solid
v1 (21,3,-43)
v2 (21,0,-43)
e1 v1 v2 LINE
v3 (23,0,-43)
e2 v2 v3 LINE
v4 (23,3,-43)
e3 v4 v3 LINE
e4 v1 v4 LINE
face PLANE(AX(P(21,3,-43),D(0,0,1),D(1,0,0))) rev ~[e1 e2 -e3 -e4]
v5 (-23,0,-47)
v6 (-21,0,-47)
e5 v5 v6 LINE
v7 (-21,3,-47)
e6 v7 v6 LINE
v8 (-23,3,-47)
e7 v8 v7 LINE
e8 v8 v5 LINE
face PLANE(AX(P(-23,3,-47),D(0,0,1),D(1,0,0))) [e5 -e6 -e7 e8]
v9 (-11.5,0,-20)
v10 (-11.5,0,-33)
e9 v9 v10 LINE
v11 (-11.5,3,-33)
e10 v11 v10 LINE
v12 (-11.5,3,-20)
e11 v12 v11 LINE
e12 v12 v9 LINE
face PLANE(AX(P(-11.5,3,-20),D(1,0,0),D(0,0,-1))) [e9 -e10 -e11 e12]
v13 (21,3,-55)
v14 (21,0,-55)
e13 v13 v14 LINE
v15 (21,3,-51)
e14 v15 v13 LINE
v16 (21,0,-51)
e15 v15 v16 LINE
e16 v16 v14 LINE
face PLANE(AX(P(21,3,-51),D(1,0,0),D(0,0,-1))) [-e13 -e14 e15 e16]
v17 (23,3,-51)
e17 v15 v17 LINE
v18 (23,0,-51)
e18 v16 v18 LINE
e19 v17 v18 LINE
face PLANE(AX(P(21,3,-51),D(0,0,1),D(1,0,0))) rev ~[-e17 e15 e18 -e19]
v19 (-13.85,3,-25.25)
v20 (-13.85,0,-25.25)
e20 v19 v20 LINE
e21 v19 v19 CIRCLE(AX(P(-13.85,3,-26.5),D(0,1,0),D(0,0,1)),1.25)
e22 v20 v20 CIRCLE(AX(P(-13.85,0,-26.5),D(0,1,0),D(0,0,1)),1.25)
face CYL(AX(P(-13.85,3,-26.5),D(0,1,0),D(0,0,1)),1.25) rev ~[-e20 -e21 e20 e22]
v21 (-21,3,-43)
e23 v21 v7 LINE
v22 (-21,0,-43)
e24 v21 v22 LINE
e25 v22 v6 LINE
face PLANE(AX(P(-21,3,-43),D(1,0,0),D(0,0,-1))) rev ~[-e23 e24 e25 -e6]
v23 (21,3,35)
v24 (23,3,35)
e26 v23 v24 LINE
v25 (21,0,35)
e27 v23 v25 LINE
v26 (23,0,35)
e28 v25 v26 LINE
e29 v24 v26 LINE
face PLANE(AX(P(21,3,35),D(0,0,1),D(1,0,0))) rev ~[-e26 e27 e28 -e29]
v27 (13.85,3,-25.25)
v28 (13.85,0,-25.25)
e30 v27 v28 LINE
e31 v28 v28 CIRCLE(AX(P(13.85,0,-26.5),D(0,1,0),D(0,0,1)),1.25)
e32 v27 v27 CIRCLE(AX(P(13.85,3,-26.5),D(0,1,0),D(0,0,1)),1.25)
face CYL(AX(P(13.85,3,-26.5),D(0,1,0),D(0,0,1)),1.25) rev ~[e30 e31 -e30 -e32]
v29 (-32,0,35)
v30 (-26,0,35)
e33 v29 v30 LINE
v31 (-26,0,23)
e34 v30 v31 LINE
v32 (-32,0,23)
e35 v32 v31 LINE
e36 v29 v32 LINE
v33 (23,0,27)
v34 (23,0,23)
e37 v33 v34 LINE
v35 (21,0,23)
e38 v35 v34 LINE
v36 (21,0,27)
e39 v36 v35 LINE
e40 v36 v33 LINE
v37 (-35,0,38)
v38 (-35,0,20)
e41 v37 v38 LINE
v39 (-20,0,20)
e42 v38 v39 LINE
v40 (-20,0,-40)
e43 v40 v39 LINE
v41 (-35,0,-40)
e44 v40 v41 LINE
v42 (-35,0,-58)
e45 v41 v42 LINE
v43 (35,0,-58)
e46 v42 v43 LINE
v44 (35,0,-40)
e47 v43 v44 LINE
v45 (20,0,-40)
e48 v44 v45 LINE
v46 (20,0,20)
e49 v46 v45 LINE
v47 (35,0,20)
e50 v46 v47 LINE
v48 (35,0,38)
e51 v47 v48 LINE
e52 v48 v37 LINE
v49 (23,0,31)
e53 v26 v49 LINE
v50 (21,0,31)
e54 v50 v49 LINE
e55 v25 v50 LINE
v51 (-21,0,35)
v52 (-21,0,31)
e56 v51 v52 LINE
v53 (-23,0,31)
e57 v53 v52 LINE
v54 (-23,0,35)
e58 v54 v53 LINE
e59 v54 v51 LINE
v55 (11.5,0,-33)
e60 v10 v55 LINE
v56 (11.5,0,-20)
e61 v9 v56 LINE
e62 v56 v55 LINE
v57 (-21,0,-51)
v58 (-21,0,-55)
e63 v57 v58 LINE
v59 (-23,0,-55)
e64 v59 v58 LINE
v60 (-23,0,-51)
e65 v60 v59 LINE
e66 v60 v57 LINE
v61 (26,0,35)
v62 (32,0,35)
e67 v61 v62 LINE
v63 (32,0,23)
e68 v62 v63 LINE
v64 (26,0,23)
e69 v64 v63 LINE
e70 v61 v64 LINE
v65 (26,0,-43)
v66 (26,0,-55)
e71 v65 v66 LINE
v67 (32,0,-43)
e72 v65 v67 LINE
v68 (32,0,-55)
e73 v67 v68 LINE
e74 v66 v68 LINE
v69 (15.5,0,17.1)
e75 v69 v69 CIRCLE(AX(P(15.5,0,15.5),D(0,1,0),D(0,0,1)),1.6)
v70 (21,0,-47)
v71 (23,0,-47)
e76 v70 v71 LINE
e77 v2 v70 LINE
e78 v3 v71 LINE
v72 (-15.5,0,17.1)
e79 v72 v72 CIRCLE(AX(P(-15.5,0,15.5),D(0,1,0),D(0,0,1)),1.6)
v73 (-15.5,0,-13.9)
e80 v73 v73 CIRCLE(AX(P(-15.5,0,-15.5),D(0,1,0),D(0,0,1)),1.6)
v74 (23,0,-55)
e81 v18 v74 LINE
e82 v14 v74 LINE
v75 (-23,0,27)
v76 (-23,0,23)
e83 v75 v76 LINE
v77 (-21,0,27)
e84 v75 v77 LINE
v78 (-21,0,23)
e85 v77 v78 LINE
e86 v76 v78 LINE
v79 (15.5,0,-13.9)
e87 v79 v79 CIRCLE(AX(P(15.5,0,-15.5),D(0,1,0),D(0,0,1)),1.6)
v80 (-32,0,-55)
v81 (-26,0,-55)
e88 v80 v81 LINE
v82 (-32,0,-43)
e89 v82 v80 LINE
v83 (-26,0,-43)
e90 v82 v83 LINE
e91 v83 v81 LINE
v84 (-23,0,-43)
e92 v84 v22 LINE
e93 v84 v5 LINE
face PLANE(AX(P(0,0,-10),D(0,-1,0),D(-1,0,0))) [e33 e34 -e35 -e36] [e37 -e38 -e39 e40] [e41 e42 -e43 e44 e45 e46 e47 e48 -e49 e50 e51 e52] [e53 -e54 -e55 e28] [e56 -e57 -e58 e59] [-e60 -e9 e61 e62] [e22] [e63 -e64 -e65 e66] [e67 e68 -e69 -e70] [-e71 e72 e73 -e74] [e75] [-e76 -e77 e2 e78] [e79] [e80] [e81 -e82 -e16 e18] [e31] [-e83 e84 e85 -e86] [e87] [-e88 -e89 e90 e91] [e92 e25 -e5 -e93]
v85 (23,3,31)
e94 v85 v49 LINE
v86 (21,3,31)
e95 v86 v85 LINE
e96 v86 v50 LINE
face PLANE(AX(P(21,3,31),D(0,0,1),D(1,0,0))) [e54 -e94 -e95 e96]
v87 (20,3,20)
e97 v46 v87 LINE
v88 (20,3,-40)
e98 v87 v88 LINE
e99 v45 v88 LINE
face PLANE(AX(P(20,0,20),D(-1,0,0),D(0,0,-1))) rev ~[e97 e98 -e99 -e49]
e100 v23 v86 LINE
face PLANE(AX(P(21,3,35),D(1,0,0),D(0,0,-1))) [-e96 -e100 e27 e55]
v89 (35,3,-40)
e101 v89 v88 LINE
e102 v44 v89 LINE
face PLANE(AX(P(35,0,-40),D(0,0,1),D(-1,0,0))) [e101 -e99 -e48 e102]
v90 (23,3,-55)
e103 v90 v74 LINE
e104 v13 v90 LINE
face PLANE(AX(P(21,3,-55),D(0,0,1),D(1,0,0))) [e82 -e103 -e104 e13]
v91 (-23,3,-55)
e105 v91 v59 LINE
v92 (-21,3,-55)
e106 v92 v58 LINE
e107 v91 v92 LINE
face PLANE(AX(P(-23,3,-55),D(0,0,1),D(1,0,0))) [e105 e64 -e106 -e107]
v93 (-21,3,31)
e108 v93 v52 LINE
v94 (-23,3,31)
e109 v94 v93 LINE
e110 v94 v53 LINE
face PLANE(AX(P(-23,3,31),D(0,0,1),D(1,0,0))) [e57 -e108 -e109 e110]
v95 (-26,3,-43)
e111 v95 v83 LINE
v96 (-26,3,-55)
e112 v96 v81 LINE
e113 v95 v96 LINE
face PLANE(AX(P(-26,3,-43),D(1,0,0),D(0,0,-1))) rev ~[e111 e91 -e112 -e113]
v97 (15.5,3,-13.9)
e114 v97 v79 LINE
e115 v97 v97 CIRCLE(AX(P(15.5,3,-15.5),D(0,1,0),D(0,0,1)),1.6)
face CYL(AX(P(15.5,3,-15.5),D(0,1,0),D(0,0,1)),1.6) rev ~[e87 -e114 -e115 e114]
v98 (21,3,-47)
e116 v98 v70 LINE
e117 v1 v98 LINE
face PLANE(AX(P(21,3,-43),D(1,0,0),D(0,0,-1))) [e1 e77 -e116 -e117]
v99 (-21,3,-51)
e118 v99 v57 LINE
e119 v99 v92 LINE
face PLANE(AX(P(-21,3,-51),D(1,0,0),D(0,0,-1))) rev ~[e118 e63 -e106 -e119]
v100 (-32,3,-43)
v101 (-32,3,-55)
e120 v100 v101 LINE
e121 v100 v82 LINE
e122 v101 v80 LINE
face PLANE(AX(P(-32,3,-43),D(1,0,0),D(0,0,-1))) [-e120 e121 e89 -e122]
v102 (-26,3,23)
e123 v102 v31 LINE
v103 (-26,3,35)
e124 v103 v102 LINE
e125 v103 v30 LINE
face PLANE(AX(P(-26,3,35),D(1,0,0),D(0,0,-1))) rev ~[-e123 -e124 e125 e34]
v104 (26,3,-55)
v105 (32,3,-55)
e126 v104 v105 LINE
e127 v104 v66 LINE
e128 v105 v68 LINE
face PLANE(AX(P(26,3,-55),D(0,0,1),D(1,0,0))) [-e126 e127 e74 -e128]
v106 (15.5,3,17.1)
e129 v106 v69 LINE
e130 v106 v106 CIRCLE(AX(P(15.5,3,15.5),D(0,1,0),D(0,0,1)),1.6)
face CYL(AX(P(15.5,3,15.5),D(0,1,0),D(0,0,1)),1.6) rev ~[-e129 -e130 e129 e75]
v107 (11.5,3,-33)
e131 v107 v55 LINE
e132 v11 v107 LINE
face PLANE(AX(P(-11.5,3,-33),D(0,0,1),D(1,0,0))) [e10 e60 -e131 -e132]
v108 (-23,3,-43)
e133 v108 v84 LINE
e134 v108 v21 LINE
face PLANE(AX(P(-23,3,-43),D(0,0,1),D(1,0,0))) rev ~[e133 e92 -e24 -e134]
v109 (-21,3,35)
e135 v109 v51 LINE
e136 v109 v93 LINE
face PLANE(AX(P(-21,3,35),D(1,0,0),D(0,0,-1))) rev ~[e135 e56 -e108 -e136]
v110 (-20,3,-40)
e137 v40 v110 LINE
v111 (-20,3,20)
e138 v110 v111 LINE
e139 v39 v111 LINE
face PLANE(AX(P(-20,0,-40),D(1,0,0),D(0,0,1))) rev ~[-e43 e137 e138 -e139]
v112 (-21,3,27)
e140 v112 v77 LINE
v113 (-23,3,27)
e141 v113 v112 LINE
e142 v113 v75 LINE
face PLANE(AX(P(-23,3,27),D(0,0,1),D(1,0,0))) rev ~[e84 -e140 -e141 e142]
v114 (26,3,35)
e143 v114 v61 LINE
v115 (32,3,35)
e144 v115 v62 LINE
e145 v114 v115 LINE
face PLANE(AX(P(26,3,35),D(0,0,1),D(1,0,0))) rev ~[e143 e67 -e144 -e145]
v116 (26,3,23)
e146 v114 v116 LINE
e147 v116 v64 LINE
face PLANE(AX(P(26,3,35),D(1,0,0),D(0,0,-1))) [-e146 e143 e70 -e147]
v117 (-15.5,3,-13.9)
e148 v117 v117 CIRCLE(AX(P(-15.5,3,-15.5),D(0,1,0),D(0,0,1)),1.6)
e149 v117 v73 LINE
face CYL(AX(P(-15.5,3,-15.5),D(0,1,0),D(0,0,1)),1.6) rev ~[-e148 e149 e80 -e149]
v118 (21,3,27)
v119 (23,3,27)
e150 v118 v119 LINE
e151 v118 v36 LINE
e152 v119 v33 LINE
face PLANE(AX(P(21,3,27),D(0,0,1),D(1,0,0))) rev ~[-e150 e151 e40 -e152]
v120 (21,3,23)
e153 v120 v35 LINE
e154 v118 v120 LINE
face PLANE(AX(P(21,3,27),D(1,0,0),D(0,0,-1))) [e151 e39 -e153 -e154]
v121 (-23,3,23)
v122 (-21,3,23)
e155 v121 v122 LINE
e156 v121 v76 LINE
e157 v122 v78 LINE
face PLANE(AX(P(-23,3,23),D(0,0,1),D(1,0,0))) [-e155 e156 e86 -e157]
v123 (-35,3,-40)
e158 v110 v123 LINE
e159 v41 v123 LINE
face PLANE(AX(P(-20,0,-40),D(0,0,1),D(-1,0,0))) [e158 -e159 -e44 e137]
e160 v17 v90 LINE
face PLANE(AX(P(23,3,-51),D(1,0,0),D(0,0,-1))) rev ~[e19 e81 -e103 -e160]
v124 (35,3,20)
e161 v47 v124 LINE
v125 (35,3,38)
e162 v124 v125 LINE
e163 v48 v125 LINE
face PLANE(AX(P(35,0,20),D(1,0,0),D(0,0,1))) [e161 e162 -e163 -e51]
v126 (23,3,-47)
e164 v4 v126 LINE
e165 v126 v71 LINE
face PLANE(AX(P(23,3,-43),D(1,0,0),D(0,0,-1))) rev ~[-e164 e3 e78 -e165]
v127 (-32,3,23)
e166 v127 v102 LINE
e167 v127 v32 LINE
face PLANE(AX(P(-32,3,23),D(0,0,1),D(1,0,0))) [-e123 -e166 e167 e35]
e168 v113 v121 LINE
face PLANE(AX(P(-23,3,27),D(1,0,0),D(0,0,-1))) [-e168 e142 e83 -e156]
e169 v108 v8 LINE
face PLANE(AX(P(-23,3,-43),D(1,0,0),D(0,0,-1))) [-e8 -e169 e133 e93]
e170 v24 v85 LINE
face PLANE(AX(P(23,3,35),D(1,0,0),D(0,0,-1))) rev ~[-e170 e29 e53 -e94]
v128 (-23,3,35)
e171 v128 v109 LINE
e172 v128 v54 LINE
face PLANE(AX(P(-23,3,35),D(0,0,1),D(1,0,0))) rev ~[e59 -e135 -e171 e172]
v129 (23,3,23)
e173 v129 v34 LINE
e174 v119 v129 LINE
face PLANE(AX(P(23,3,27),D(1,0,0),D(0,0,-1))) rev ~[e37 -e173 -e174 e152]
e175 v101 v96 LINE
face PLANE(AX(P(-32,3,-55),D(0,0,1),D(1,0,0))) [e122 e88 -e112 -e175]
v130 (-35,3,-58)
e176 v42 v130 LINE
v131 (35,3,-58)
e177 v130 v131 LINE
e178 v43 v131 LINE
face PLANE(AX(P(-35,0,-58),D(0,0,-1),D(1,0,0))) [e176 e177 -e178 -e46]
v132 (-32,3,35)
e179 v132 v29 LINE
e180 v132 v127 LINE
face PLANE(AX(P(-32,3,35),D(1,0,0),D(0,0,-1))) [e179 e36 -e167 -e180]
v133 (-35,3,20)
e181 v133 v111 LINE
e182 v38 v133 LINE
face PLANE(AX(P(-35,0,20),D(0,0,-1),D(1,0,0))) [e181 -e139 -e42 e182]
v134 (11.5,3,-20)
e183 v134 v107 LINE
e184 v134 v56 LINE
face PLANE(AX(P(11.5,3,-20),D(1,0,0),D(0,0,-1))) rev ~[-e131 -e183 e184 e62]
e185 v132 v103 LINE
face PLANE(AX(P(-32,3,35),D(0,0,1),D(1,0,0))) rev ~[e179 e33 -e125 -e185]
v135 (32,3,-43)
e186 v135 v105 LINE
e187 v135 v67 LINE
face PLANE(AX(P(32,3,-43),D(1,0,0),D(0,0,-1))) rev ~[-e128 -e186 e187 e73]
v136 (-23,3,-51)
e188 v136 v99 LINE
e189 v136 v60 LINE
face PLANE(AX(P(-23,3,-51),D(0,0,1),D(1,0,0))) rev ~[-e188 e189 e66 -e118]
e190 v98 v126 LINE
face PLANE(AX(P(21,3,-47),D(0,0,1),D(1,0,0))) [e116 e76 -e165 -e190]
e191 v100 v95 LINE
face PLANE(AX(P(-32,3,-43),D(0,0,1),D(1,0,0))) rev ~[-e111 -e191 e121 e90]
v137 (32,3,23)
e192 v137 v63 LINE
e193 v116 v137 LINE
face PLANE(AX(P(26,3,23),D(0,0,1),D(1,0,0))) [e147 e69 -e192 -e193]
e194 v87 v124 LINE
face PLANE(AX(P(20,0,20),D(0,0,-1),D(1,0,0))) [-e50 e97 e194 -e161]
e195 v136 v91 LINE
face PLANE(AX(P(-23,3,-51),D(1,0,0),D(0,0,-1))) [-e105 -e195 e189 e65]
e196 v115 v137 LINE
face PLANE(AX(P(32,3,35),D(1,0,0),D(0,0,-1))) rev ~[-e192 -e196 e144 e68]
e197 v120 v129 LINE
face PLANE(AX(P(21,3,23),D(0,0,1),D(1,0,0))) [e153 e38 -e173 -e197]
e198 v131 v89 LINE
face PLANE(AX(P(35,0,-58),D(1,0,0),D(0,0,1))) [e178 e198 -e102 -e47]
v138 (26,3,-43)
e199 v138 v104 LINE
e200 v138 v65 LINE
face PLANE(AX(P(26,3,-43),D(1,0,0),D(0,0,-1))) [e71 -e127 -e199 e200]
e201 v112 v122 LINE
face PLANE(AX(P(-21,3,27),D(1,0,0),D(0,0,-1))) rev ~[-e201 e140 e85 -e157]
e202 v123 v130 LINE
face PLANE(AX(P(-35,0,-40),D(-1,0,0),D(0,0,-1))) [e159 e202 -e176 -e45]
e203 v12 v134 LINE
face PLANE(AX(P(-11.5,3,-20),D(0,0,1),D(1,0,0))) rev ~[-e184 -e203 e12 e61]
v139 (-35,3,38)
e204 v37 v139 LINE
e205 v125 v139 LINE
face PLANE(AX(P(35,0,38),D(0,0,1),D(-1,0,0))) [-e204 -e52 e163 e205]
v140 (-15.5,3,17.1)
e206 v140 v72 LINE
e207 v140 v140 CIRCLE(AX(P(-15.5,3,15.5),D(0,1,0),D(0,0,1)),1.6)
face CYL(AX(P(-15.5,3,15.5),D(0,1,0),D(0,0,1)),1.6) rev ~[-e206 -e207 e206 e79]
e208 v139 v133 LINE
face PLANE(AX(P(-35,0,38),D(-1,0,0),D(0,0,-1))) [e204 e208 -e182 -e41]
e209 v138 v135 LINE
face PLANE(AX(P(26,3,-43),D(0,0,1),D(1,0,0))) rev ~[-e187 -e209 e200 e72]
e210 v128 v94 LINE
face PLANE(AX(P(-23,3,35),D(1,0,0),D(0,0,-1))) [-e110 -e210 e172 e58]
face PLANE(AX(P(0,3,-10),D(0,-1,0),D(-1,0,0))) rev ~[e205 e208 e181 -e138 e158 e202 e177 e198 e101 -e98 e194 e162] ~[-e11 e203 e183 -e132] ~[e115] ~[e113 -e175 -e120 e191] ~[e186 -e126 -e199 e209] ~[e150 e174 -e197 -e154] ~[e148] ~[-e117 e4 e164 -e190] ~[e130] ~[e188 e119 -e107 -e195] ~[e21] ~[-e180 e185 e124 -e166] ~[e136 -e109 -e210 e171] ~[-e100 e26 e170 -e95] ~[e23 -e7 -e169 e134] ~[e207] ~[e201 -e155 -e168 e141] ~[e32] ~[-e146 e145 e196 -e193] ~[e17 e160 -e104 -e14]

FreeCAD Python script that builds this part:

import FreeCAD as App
import Part
import Sketcher
from FreeCAD import Vector
Q = App.Units.Quantity


def add_polygon(sketch, points):
    """Adds a closed chain of lines whose ends are joined by coincident constraints."""
    first, n = sketch.GeometryCount, len(points)
    for a, b in zip(points, points[1:] + points[:1]):
        sketch.addGeometry(Part.LineSegment(App.Vector(*a, 0), App.Vector(*b, 0)), False)
    for i in range(n):
        sketch.addConstraint(Sketcher.Constraint("Coincident", first + i, 2, first + (i + 1) % n, 1))

doc = App.newDocument("Part")
body = doc.addObject("PartDesign::Body", "Body")

# Sketch on XZ plane
sketch1 = doc.addObject("Sketcher::SketchObject", "Sketch")
body.addObject(sketch1)
sketch1.AttachmentSupport = (doc.XZ_Plane, [""])
sketch1.MapMode = "FlatFace"
add_polygon(sketch1, [(35, 20), (20, 20), (20, -40), (35, -40), (35, -58), (-35, -58), (-35, -40), (-20, -40), (-20, 20), (-35, 20), (-35, 38), (35, 38)])  # lines 0-11
sketch1.addConstraint(Sketcher.Constraint("Horizontal", 0))
sketch1.addConstraint(Sketcher.Constraint("Vertical", 1))
sketch1.addConstraint(Sketcher.Constraint("Horizontal", 2))
sketch1.addConstraint(Sketcher.Constraint("Vertical", 3))
sketch1.addConstraint(Sketcher.Constraint("Horizontal", 4))
sketch1.addConstraint(Sketcher.Constraint("Vertical", 5))
sketch1.addConstraint(Sketcher.Constraint("Horizontal", 6))
sketch1.addConstraint(Sketcher.Constraint("Vertical", 7))
sketch1.addConstraint(Sketcher.Constraint("Horizontal", 8))
sketch1.addConstraint(Sketcher.Constraint("Vertical", 9))
sketch1.addConstraint(Sketcher.Constraint("Horizontal", 10))
sketch1.addConstraint(Sketcher.Constraint("Vertical", 11))
sketch1.addConstraint(Sketcher.Constraint("Symmetric", 2, 2, 5, 2, -2))
sketch1.addConstraint(Sketcher.Constraint("Symmetric", 0, 2, 7, 2, -2))
sketch1.addConstraint(Sketcher.Constraint("Vertical", 5, 2, 8, 2))
sketch1.addConstraint(Sketcher.Constraint("Vertical", 3, 2, 10, 2))
sketch1.addConstraint(Sketcher.Constraint("Equal", 5, 9))
sketch1.addConstraint(Sketcher.Constraint("DistanceX", 0, 2, 0, 1, Q("15 mm")))
sketch1.addConstraint(Sketcher.Constraint("DistanceX", 4, 2, 4, 1, Q("70 mm")))
sketch1.addConstraint(Sketcher.Constraint("DistanceY", 1, 2, 1, 1, Q("60 mm")))
sketch1.addConstraint(Sketcher.Constraint("DistanceY", 3, 2, 3, 1, Q("18 mm")))
sketch1.addConstraint(Sketcher.Constraint("DistanceY", -1, 1, 0, 2, Q("20 mm")))
pad1 = doc.addObject("PartDesign::Pad", "Pad")
body.addObject(pad1)
pad1.Profile = sketch1
pad1.Length = 3
pad1.Reversed = True

# Sketch on XZ plane
sketch2 = doc.addObject("Sketcher::SketchObject", "Sketch001")
body.addObject(sketch2)
sketch2.AttachmentSupport = (doc.XZ_Plane, [""])
sketch2.MapMode = "FlatFace"
sketch2.AttachmentOffset = App.Placement(Vector(0, 0, -3), App.Rotation())
sketch2.addGeometry(Part.Circle(Vector(-15.5, 15.5, 0), Vector(0, 0, 1), 1.6), False)
sketch2.addConstraint(Sketcher.Constraint("Diameter", 0, Q("3.2 mm")))
sketch2.addConstraint(Sketcher.Constraint("DistanceX", 0, 3, -1, 1, Q("15.5 mm")))
sketch2.addConstraint(Sketcher.Constraint("DistanceY", -1, 1, 0, 3, Q("15.5 mm")))
pocket1 = doc.addObject("PartDesign::Pocket", "Pocket")
body.addObject(pocket1)
pocket1.Profile = sketch2
pocket1.Type = "UpToFirst"
pocket1.Reversed = True

# Sketch on XZ plane
sketch3 = doc.addObject("Sketcher::SketchObject", "Sketch002")
body.addObject(sketch3)
sketch3.AttachmentSupport = (doc.XZ_Plane, [""])
sketch3.MapMode = "FlatFace"
sketch3.AttachmentOffset = App.Placement(Vector(0, 0, -3), App.Rotation())
sketch3.addGeometry(Part.Circle(Vector(-15.5, -15.5, 0), Vector(0, 0, 1), 1.6), False)
sketch3.addConstraint(Sketcher.Constraint("Diameter", 0, Q("3.2 mm")))
sketch3.addConstraint(Sketcher.Constraint("DistanceX", 0, 3, -1, 1, Q("15.5 mm")))
sketch3.addConstraint(Sketcher.Constraint("DistanceY", 0, 3, -1, 1, Q("15.5 mm")))
pocket2 = doc.addObject("PartDesign::Pocket", "Pocket001")
body.addObject(pocket2)
pocket2.Profile = sketch3
pocket2.Type = "UpToFirst"
pocket2.Reversed = True

# Sketch on XZ plane
sketch4 = doc.addObject("Sketcher::SketchObject", "Sketch003")
body.addObject(sketch4)
sketch4.AttachmentSupport = (doc.XZ_Plane, [""])
sketch4.MapMode = "FlatFace"
sketch4.AttachmentOffset = App.Placement(Vector(0, 0, -3), App.Rotation())
sketch4.addGeometry(Part.Circle(Vector(15.5, 15.5, 0), Vector(0, 0, 1), 1.6), False)
sketch4.addConstraint(Sketcher.Constraint("Diameter", 0, Q("3.2 mm")))
sketch4.addConstraint(Sketcher.Constraint("DistanceX", -1, 1, 0, 3, Q("15.5 mm")))
sketch4.addConstraint(Sketcher.Constraint("DistanceY", -1, 1, 0, 3, Q("15.5 mm")))
pocket3 = doc.addObject("PartDesign::Pocket", "Pocket002")
body.addObject(pocket3)
pocket3.Profile = sketch4
pocket3.Type = "UpToFirst"
pocket3.Reversed = True

# Sketch on XZ plane
sketch5 = doc.addObject("Sketcher::SketchObject", "Sketch004")
body.addObject(sketch5)
sketch5.AttachmentSupport = (doc.XZ_Plane, [""])
sketch5.MapMode = "FlatFace"
sketch5.AttachmentOffset = App.Placement(Vector(0, 0, -3), App.Rotation())
sketch5.addGeometry(Part.Circle(Vector(15.5, -15.5, 0), Vector(0, 0, 1), 1.6), False)
sketch5.addConstraint(Sketcher.Constraint("Diameter", 0, Q("3.2 mm")))
sketch5.addConstraint(Sketcher.Constraint("DistanceX", -1, 1, 0, 3, Q("15.5 mm")))
sketch5.addConstraint(Sketcher.Constraint("DistanceY", 0, 3, -1, 1, Q("15.5 mm")))
pocket4 = doc.addObject("PartDesign::Pocket", "Pocket003")
body.addObject(pocket4)
pocket4.Profile = sketch5
pocket4.Type = "UpToFirst"
pocket4.Reversed = True

# Sketch on XZ plane
sketch6 = doc.addObject("Sketcher::SketchObject", "Sketch005")
body.addObject(sketch6)
sketch6.AttachmentSupport = (doc.XZ_Plane, [""])
sketch6.MapMode = "FlatFace"
sketch6.AttachmentOffset = App.Placement(Vector(0, 0, -3), App.Rotation())
sketch6.addGeometry(Part.Circle(Vector(-13.8, -26.5, 0), Vector(0, 0, 1), 1.2), False)
sketch6.addConstraint(Sketcher.Constraint("Diameter", 0, Q("2.5 mm")))
sketch6.addConstraint(Sketcher.Constraint("DistanceY", 0, 3, -1, 1, Q("26.5 mm")))
sketch6.addConstraint(Sketcher.Constraint("DistanceX", 0, 3, -1, 1, Q("13.85 mm")))
pocket5 = doc.addObject("PartDesign::Pocket", "Pocket004")
body.addObject(pocket5)
pocket5.Profile = sketch6
pocket5.Type = "UpToFirst"
pocket5.Reversed = True

# Sketch on XZ plane
sketch7 = doc.addObject("Sketcher::SketchObject", "Sketch006")
body.addObject(sketch7)
sketch7.AttachmentSupport = (doc.XZ_Plane, [""])
sketch7.MapMode = "FlatFace"
sketch7.AttachmentOffset = App.Placement(Vector(0, 0, -3), App.Rotation())
sketch7.addGeometry(Part.Circle(Vector(13.8, -26.5, 0), Vector(0, 0, 1), 1.2), False)
sketch7.addConstraint(Sketcher.Constraint("Diameter", 0, Q("2.5 mm")))
sketch7.addConstraint(Sketcher.Constraint("DistanceY", 0, 3, -1, 1, Q("26.5 mm")))
sketch7.addConstraint(Sketcher.Constraint("DistanceX", -1, 1, 0, 3, Q("13.85 mm")))
pocket6 = doc.addObject("PartDesign::Pocket", "Pocket005")
body.addObject(pocket6)
pocket6.Profile = sketch7
pocket6.Type = "UpToFirst"
pocket6.Reversed = True

# Sketch on XZ plane
sketch8 = doc.addObject("Sketcher::SketchObject", "Sketch007")
body.addObject(sketch8)
sketch8.AttachmentSupport = (doc.XZ_Plane, [""])
sketch8.MapMode = "FlatFace"
sketch8.AttachmentOffset = App.Placement(Vector(0, 0, -3), App.Rotation())
add_polygon(sketch8, [(-12, -33), (-12, -20), (12, -20), (12, -33)])  # lines 0-3
sketch8.addConstraint(Sketcher.Constraint("Vertical", 0))
sketch8.addConstraint(Sketcher.Constraint("Horizontal", 1))
sketch8.addConstraint(Sketcher.Constraint("Vertical", 2))
sketch8.addConstraint(Sketcher.Constraint("Horizontal", 3))
sketch8.addConstraint(Sketcher.Constraint("DistanceX", 1, 1, 1, 2, Q("23 mm")))
sketch8.addConstraint(Sketcher.Constraint("DistanceY", 0, 1, 0, 2, Q("13 mm")))
sketch8.addConstraint(Sketcher.Constraint("DistanceY", 0, 2, -1, 1, Q("20 mm")))
sketch8.addConstraint(Sketcher.Constraint("DistanceX", 0, 2, -1, 1, Q("11.5 mm")))
pocket7 = doc.addObject("PartDesign::Pocket", "Pocket006")
body.addObject(pocket7)
pocket7.Profile = sketch8
pocket7.Type = "UpToFirst"
pocket7.Reversed = True

# Sketch on XZ plane
sketch9 = doc.addObject("Sketcher::SketchObject", "Sketch008")
body.addObject(sketch9)
sketch9.AttachmentSupport = (doc.XZ_Plane, [""])
sketch9.MapMode = "FlatFace"
sketch9.AttachmentOffset = App.Placement(Vector(0, 0, -3), App.Rotation())
add_polygon(sketch9, [(-23, 31), (-23, 35), (-21, 35), (-21, 31)])  # lines 0-3
sketch9.addConstraint(Sketcher.Constraint("Vertical", 0))
sketch9.addConstraint(Sketcher.Constraint("Horizontal", 1))
sketch9.addConstraint(Sketcher.Constraint("Vertical", 2))
sketch9.addConstraint(Sketcher.Constraint("Horizontal", 3))
sketch9.addConstraint(Sketcher.Constraint("DistanceX", 1, 1, 1, 2, Q("2 mm")))
sketch9.addConstraint(Sketcher.Constraint("DistanceY", 0, 1, 0, 2, Q("4 mm")))
sketch9.addConstraint(Sketcher.Constraint("DistanceX", 0, 2, -1, 1, Q("23 mm")))
sketch9.addConstraint(Sketcher.Constraint("DistanceY", -1, 1, 0, 2, Q("35 mm")))
pocket8 = doc.addObject("PartDesign::Pocket", "Pocket007")
body.addObject(pocket8)
pocket8.Profile = sketch9
pocket8.Type = "UpToFirst"
pocket8.Reversed = True

# Sketch on XZ plane
sketch10 = doc.addObject("Sketcher::SketchObject", "Sketch009")
body.addObject(sketch10)
sketch10.AttachmentSupport = (doc.XZ_Plane, [""])
sketch10.MapMode = "FlatFace"
sketch10.AttachmentOffset = App.Placement(Vector(0, 0, -3), App.Rotation())
add_polygon(sketch10, [(-32, 23), (-32, 35), (-26, 35), (-26, 23)])  # lines 0-3
sketch10.addConstraint(Sketcher.Constraint("Vertical", 0))
sketch10.addConstraint(Sketcher.Constraint("Horizontal", 1))
sketch10.addConstraint(Sketcher.Constraint("Vertical", 2))
sketch10.addConstraint(Sketcher.Constraint("Horizontal", 3))
sketch10.addConstraint(Sketcher.Constraint("DistanceX", 1, 1, 1, 2, Q("6 mm")))
sketch10.addConstraint(Sketcher.Constraint("DistanceY", 0, 1, 0, 2, Q("12 mm")))
sketch10.addConstraint(Sketcher.Constraint("DistanceX", 0, 2, -1, 1, Q("32 mm")))
sketch10.addConstraint(Sketcher.Constraint("DistanceY", -1, 1, 0, 2, Q("35 mm")))
pocket9 = doc.addObject("PartDesign::Pocket", "Pocket008")
body.addObject(pocket9)
pocket9.Profile = sketch10
pocket9.Type = "UpToFirst"
pocket9.Reversed = True

# Sketch on XZ plane
sketch11 = doc.addObject("Sketcher::SketchObject", "Sketch010")
body.addObject(sketch11)
sketch11.AttachmentSupport = (doc.XZ_Plane, [""])
sketch11.MapMode = "FlatFace"
sketch11.AttachmentOffset = App.Placement(Vector(0, 0, -3), App.Rotation())
add_polygon(sketch11, [(-23, 23), (-23, 27), (-21, 27), (-21, 23)])  # lines 0-3
sketch11.addConstraint(Sketcher.Constraint("Vertical", 0))
sketch11.addConstraint(Sketcher.Constraint("Horizontal", 1))
sketch11.addConstraint(Sketcher.Constraint("Vertical", 2))
sketch11.addConstraint(Sketcher.Constraint("Horizontal", 3))
sketch11.addConstraint(Sketcher.Constraint("DistanceX", 1, 1, 1, 2, Q("2 mm")))
sketch11.addConstraint(Sketcher.Constraint("DistanceY", 0, 1, 0, 2, Q("4 mm")))
sketch11.addConstraint(Sketcher.Constraint("DistanceX", 0, 2, -1, 1, Q("23 mm")))
sketch11.addConstraint(Sketcher.Constraint("DistanceY", -1, 1, 0, 2, Q("27 mm")))
pocket10 = doc.addObject("PartDesign::Pocket", "Pocket009")
body.addObject(pocket10)
pocket10.Profile = sketch11
pocket10.Type = "UpToFirst"
pocket10.Reversed = True

# Sketch on XZ plane
sketch12 = doc.addObject("Sketcher::SketchObject", "Sketch011")
body.addObject(sketch12)
sketch12.AttachmentSupport = (doc.XZ_Plane, [""])
sketch12.MapMode = "FlatFace"
sketch12.AttachmentOffset = App.Placement(Vector(0, 0, -3), App.Rotation())
add_polygon(sketch12, [(21, 31), (21, 35), (23, 35), (23, 31)])  # lines 0-3
sketch12.addConstraint(Sketcher.Constraint("Vertical", 0))
sketch12.addConstraint(Sketcher.Constraint("Horizontal", 1))
sketch12.addConstraint(Sketcher.Constraint("Vertical", 2))
sketch12.addConstraint(Sketcher.Constraint("Horizontal", 3))
sketch12.addConstraint(Sketcher.Constraint("DistanceX", 1, 1, 1, 2, Q("2 mm")))
sketch12.addConstraint(Sketcher.Constraint("DistanceY", 0, 1, 0, 2, Q("4 mm")))
sketch12.addConstraint(Sketcher.Constraint("DistanceX", -1, 1, 0, 2, Q("21 mm")))
sketch12.addConstraint(Sketcher.Constraint("DistanceY", -1, 1, 0, 2, Q("35 mm")))
pocket11 = doc.addObject("PartDesign::Pocket", "Pocket010")
body.addObject(pocket11)
pocket11.Profile = sketch12
pocket11.Type = "UpToFirst"
pocket11.Reversed = True

# Sketch on XZ plane
sketch13 = doc.addObject("Sketcher::SketchObject", "Sketch012")
body.addObject(sketch13)
sketch13.AttachmentSupport = (doc.XZ_Plane, [""])
sketch13.MapMode = "FlatFace"
sketch13.AttachmentOffset = App.Placement(Vector(0, 0, -3), App.Rotation())
add_polygon(sketch13, [(21, 23), (21, 27), (23, 27), (23, 23)])  # lines 0-3
sketch13.addConstraint(Sketcher.Constraint("Vertical", 0))
sketch13.addConstraint(Sketcher.Constraint("Horizontal", 1))
sketch13.addConstraint(Sketcher.Constraint("Vertical", 2))
sketch13.addConstraint(Sketcher.Constraint("Horizontal", 3))
sketch13.addConstraint(Sketcher.Constraint("DistanceX", 1, 1, 1, 2, Q("2 mm")))
sketch13.addConstraint(Sketcher.Constraint("DistanceY", 0, 1, 0, 2, Q("4 mm")))
sketch13.addConstraint(Sketcher.Constraint("DistanceX", -1, 1, 0, 2, Q("21 mm")))
sketch13.addConstraint(Sketcher.Constraint("DistanceY", -1, 1, 0, 2, Q("27 mm")))
pocket12 = doc.addObject("PartDesign::Pocket", "Pocket011")
body.addObject(pocket12)
pocket12.Profile = sketch13
pocket12.Type = "UpToFirst"
pocket12.Reversed = True

# Sketch on XZ plane
sketch14 = doc.addObject("Sketcher::SketchObject", "Sketch013")
body.addObject(sketch14)
sketch14.AttachmentSupport = (doc.XZ_Plane, [""])
sketch14.MapMode = "FlatFace"
sketch14.AttachmentOffset = App.Placement(Vector(0, 0, -3), App.Rotation())
add_polygon(sketch14, [(26, 23), (26, 35), (32, 35), (32, 23)])  # lines 0-3
sketch14.addConstraint(Sketcher.Constraint("Vertical", 0))
sketch14.addConstraint(Sketcher.Constraint("Horizontal", 1))
sketch14.addConstraint(Sketcher.Constraint("Vertical", 2))
sketch14.addConstraint(Sketcher.Constraint("Horizontal", 3))
sketch14.addConstraint(Sketcher.Constraint("DistanceX", 1, 1, 1, 2, Q("6 mm")))
sketch14.addConstraint(Sketcher.Constraint("DistanceY", 0, 1, 0, 2, Q("12 mm")))
sketch14.addConstraint(Sketcher.Constraint("DistanceX", -1, 1, 0, 2, Q("26 mm")))
sketch14.addConstraint(Sketcher.Constraint("DistanceY", -1, 1, 0, 2, Q("35 mm")))
pocket13 = doc.addObject("PartDesign::Pocket", "Pocket012")
body.addObject(pocket13)
pocket13.Profile = sketch14
pocket13.Type = "UpToFirst"
pocket13.Reversed = True

# Sketch on XZ plane
sketch15 = doc.addObject("Sketcher::SketchObject", "Sketch014")
body.addObject(sketch15)
sketch15.AttachmentSupport = (doc.XZ_Plane, [""])
sketch15.MapMode = "FlatFace"
sketch15.AttachmentOffset = App.Placement(Vector(0, 0, -3), App.Rotation())
add_polygon(sketch15, [(-23, -47), (-23, -43), (-21, -43), (-21, -47)])  # lines 0-3
sketch15.addConstraint(Sketcher.Constraint("Vertical", 0))
sketch15.addConstraint(Sketcher.Constraint("Horizontal", 1))
sketch15.addConstraint(Sketcher.Constraint("Vertical", 2))
sketch15.addConstraint(Sketcher.Constraint("Horizontal", 3))
sketch15.addConstraint(Sketcher.Constraint("DistanceX", 1, 1, 1, 2, Q("2 mm")))
sketch15.addConstraint(Sketcher.Constraint("DistanceY", 0, 1, 0, 2, Q("4 mm")))
sketch15.addConstraint(Sketcher.Constraint("DistanceX", 0, 2, -1, 1, Q("23 mm")))
sketch15.addConstraint(Sketcher.Constraint("DistanceY", 0, 2, -1, 1, Q("43 mm")))
pocket14 = doc.addObject("PartDesign::Pocket", "Pocket013")
body.addObject(pocket14)
pocket14.Profile = sketch15
pocket14.Type = "UpToFirst"
pocket14.Reversed = True

# Sketch on XZ plane
sketch16 = doc.addObject("Sketcher::SketchObject", "Sketch015")
body.addObject(sketch16)
sketch16.AttachmentSupport = (doc.XZ_Plane, [""])
sketch16.MapMode = "FlatFace"
sketch16.AttachmentOffset = App.Placement(Vector(0, 0, -3), App.Rotation())
add_polygon(sketch16, [(-32, -55), (-32, -43), (-26, -43), (-26, -55)])  # lines 0-3
sketch16.addConstraint(Sketcher.Constraint("Vertical", 0))
sketch16.addConstraint(Sketcher.Constraint("Horizontal", 1))
sketch16.addConstraint(Sketcher.Constraint("Vertical", 2))
sketch16.addConstraint(Sketcher.Constraint("Horizontal", 3))
sketch16.addConstraint(Sketcher.Constraint("DistanceX", 1, 1, 1, 2, Q("6 mm")))
sketch16.addConstraint(Sketcher.Constraint("DistanceY", 0, 1, 0, 2, Q("12 mm")))
sketch16.addConstraint(Sketcher.Constraint("DistanceX", 0, 2, -1, 1, Q("32 mm")))
sketch16.addConstraint(Sketcher.Constraint("DistanceY", 0, 2, -1, 1, Q("43 mm")))
pocket15 = doc.addObject("PartDesign::Pocket", "Pocket014")
body.addObject(pocket15)
pocket15.Profile = sketch16
pocket15.Type = "UpToFirst"
pocket15.Reversed = True

# Sketch on XZ plane
sketch17 = doc.addObject("Sketcher::SketchObject", "Sketch016")
body.addObject(sketch17)
sketch17.AttachmentSupport = (doc.XZ_Plane, [""])
sketch17.MapMode = "FlatFace"
sketch17.AttachmentOffset = App.Placement(Vector(0, 0, -3), App.Rotation())
add_polygon(sketch17, [(-23, -55), (-23, -51), (-21, -51), (-21, -55)])  # lines 0-3
sketch17.addConstraint(Sketcher.Constraint("Vertical", 0))
sketch17.addConstraint(Sketcher.Constraint("Horizontal", 1))
sketch17.addConstraint(Sketcher.Constraint("Vertical", 2))
sketch17.addConstraint(Sketcher.Constraint("Horizontal", 3))
sketch17.addConstraint(Sketcher.Constraint("DistanceX", 1, 1, 1, 2, Q("2 mm")))
sketch17.addConstraint(Sketcher.Constraint("DistanceY", 0, 1, 0, 2, Q("4 mm")))
sketch17.addConstraint(Sketcher.Constraint("DistanceX", 0, 2, -1, 1, Q("23 mm")))
sketch17.addConstraint(Sketcher.Constraint("DistanceY", 0, 2, -1, 1, Q("51 mm")))
pocket16 = doc.addObject("PartDesign::Pocket", "Pocket015")
body.addObject(pocket16)
pocket16.Profile = sketch17
pocket16.Type = "UpToFirst"
pocket16.Reversed = True

# Sketch on XZ plane
sketch18 = doc.addObject("Sketcher::SketchObject", "Sketch017")
body.addObject(sketch18)
sketch18.AttachmentSupport = (doc.XZ_Plane, [""])
sketch18.MapMode = "FlatFace"
sketch18.AttachmentOffset = App.Placement(Vector(0, 0, -3), App.Rotation())
add_polygon(sketch18, [(21, -47), (21, -43), (23, -43), (23, -47)])  # lines 0-3
sketch18.addConstraint(Sketcher.Constraint("Vertical", 0))
sketch18.addConstraint(Sketcher.Constraint("Horizontal", 1))
sketch18.addConstraint(Sketcher.Constraint("Vertical", 2))
sketch18.addConstraint(Sketcher.Constraint("Horizontal", 3))
sketch18.addConstraint(Sketcher.Constraint("DistanceX", 1, 1, 1, 2, Q("2 mm")))
sketch18.addConstraint(Sketcher.Constraint("DistanceY", 0, 1, 0, 2, Q("4 mm")))
sketch18.addConstraint(Sketcher.Constraint("DistanceX", -1, 1, 0, 2, Q("21 mm")))
sketch18.addConstraint(Sketcher.Constraint("DistanceY", 0, 2, -1, 1, Q("43 mm")))
pocket17 = doc.addObject("PartDesign::Pocket", "Pocket016")
body.addObject(pocket17)
pocket17.Profile = sketch18
pocket17.Type = "UpToFirst"
pocket17.Reversed = True

# Sketch on XZ plane
sketch19 = doc.addObject("Sketcher::SketchObject", "Sketch018")
body.addObject(sketch19)
sketch19.AttachmentSupport = (doc.XZ_Plane, [""])
sketch19.MapMode = "FlatFace"
sketch19.AttachmentOffset = App.Placement(Vector(0, 0, -3), App.Rotation())
add_polygon(sketch19, [(21, -55), (21, -51), (23, -51), (23, -55)])  # lines 0-3
sketch19.addConstraint(Sketcher.Constraint("Vertical", 0))
sketch19.addConstraint(Sketcher.Constraint("Horizontal", 1))
sketch19.addConstraint(Sketcher.Constraint("Vertical", 2))
sketch19.addConstraint(Sketcher.Constraint("Horizontal", 3))
sketch19.addConstraint(Sketcher.Constraint("DistanceX", 1, 1, 1, 2, Q("2 mm")))
sketch19.addConstraint(Sketcher.Constraint("DistanceY", 0, 1, 0, 2, Q("4 mm")))
sketch19.addConstraint(Sketcher.Constraint("DistanceX", -1, 1, 0, 2, Q("21 mm")))
sketch19.addConstraint(Sketcher.Constraint("DistanceY", 0, 2, -1, 1, Q("51 mm")))
pocket18 = doc.addObject("PartDesign::Pocket", "Pocket017")
body.addObject(pocket18)
pocket18.Profile = sketch19
pocket18.Type = "UpToFirst"
pocket18.Reversed = True

# Sketch on XZ plane
sketch20 = doc.addObject("Sketcher::SketchObject", "Sketch019")
body.addObject(sketch20)
sketch20.AttachmentSupport = (doc.XZ_Plane, [""])
sketch20.MapMode = "FlatFace"
sketch20.AttachmentOffset = App.Placement(Vector(0, 0, -3), App.Rotation())
add_polygon(sketch20, [(26, -55), (26, -43), (32, -43), (32, -55)])  # lines 0-3
sketch20.addConstraint(Sketcher.Constraint("Vertical", 0))
sketch20.addConstraint(Sketcher.Constraint("Horizontal", 1))
sketch20.addConstraint(Sketcher.Constraint("Vertical", 2))
sketch20.addConstraint(Sketcher.Constraint("Horizontal", 3))
sketch20.addConstraint(Sketcher.Constraint("DistanceX", 1, 1, 1, 2, Q("6 mm")))
sketch20.addConstraint(Sketcher.Constraint("DistanceY", 0, 1, 0, 2, Q("12 mm")))
sketch20.addConstraint(Sketcher.Constraint("DistanceX", -1, 1, 0, 2, Q("26 mm")))
sketch20.addConstraint(Sketcher.Constraint("DistanceY", 0, 2, -1, 1, Q("43 mm")))
pocket19 = doc.addObject("PartDesign::Pocket", "Pocket018")
body.addObject(pocket19)
pocket19.Profile = sketch20
pocket19.Type = "UpToFirst"
pocket19.Reversed = True

doc.recompute()
